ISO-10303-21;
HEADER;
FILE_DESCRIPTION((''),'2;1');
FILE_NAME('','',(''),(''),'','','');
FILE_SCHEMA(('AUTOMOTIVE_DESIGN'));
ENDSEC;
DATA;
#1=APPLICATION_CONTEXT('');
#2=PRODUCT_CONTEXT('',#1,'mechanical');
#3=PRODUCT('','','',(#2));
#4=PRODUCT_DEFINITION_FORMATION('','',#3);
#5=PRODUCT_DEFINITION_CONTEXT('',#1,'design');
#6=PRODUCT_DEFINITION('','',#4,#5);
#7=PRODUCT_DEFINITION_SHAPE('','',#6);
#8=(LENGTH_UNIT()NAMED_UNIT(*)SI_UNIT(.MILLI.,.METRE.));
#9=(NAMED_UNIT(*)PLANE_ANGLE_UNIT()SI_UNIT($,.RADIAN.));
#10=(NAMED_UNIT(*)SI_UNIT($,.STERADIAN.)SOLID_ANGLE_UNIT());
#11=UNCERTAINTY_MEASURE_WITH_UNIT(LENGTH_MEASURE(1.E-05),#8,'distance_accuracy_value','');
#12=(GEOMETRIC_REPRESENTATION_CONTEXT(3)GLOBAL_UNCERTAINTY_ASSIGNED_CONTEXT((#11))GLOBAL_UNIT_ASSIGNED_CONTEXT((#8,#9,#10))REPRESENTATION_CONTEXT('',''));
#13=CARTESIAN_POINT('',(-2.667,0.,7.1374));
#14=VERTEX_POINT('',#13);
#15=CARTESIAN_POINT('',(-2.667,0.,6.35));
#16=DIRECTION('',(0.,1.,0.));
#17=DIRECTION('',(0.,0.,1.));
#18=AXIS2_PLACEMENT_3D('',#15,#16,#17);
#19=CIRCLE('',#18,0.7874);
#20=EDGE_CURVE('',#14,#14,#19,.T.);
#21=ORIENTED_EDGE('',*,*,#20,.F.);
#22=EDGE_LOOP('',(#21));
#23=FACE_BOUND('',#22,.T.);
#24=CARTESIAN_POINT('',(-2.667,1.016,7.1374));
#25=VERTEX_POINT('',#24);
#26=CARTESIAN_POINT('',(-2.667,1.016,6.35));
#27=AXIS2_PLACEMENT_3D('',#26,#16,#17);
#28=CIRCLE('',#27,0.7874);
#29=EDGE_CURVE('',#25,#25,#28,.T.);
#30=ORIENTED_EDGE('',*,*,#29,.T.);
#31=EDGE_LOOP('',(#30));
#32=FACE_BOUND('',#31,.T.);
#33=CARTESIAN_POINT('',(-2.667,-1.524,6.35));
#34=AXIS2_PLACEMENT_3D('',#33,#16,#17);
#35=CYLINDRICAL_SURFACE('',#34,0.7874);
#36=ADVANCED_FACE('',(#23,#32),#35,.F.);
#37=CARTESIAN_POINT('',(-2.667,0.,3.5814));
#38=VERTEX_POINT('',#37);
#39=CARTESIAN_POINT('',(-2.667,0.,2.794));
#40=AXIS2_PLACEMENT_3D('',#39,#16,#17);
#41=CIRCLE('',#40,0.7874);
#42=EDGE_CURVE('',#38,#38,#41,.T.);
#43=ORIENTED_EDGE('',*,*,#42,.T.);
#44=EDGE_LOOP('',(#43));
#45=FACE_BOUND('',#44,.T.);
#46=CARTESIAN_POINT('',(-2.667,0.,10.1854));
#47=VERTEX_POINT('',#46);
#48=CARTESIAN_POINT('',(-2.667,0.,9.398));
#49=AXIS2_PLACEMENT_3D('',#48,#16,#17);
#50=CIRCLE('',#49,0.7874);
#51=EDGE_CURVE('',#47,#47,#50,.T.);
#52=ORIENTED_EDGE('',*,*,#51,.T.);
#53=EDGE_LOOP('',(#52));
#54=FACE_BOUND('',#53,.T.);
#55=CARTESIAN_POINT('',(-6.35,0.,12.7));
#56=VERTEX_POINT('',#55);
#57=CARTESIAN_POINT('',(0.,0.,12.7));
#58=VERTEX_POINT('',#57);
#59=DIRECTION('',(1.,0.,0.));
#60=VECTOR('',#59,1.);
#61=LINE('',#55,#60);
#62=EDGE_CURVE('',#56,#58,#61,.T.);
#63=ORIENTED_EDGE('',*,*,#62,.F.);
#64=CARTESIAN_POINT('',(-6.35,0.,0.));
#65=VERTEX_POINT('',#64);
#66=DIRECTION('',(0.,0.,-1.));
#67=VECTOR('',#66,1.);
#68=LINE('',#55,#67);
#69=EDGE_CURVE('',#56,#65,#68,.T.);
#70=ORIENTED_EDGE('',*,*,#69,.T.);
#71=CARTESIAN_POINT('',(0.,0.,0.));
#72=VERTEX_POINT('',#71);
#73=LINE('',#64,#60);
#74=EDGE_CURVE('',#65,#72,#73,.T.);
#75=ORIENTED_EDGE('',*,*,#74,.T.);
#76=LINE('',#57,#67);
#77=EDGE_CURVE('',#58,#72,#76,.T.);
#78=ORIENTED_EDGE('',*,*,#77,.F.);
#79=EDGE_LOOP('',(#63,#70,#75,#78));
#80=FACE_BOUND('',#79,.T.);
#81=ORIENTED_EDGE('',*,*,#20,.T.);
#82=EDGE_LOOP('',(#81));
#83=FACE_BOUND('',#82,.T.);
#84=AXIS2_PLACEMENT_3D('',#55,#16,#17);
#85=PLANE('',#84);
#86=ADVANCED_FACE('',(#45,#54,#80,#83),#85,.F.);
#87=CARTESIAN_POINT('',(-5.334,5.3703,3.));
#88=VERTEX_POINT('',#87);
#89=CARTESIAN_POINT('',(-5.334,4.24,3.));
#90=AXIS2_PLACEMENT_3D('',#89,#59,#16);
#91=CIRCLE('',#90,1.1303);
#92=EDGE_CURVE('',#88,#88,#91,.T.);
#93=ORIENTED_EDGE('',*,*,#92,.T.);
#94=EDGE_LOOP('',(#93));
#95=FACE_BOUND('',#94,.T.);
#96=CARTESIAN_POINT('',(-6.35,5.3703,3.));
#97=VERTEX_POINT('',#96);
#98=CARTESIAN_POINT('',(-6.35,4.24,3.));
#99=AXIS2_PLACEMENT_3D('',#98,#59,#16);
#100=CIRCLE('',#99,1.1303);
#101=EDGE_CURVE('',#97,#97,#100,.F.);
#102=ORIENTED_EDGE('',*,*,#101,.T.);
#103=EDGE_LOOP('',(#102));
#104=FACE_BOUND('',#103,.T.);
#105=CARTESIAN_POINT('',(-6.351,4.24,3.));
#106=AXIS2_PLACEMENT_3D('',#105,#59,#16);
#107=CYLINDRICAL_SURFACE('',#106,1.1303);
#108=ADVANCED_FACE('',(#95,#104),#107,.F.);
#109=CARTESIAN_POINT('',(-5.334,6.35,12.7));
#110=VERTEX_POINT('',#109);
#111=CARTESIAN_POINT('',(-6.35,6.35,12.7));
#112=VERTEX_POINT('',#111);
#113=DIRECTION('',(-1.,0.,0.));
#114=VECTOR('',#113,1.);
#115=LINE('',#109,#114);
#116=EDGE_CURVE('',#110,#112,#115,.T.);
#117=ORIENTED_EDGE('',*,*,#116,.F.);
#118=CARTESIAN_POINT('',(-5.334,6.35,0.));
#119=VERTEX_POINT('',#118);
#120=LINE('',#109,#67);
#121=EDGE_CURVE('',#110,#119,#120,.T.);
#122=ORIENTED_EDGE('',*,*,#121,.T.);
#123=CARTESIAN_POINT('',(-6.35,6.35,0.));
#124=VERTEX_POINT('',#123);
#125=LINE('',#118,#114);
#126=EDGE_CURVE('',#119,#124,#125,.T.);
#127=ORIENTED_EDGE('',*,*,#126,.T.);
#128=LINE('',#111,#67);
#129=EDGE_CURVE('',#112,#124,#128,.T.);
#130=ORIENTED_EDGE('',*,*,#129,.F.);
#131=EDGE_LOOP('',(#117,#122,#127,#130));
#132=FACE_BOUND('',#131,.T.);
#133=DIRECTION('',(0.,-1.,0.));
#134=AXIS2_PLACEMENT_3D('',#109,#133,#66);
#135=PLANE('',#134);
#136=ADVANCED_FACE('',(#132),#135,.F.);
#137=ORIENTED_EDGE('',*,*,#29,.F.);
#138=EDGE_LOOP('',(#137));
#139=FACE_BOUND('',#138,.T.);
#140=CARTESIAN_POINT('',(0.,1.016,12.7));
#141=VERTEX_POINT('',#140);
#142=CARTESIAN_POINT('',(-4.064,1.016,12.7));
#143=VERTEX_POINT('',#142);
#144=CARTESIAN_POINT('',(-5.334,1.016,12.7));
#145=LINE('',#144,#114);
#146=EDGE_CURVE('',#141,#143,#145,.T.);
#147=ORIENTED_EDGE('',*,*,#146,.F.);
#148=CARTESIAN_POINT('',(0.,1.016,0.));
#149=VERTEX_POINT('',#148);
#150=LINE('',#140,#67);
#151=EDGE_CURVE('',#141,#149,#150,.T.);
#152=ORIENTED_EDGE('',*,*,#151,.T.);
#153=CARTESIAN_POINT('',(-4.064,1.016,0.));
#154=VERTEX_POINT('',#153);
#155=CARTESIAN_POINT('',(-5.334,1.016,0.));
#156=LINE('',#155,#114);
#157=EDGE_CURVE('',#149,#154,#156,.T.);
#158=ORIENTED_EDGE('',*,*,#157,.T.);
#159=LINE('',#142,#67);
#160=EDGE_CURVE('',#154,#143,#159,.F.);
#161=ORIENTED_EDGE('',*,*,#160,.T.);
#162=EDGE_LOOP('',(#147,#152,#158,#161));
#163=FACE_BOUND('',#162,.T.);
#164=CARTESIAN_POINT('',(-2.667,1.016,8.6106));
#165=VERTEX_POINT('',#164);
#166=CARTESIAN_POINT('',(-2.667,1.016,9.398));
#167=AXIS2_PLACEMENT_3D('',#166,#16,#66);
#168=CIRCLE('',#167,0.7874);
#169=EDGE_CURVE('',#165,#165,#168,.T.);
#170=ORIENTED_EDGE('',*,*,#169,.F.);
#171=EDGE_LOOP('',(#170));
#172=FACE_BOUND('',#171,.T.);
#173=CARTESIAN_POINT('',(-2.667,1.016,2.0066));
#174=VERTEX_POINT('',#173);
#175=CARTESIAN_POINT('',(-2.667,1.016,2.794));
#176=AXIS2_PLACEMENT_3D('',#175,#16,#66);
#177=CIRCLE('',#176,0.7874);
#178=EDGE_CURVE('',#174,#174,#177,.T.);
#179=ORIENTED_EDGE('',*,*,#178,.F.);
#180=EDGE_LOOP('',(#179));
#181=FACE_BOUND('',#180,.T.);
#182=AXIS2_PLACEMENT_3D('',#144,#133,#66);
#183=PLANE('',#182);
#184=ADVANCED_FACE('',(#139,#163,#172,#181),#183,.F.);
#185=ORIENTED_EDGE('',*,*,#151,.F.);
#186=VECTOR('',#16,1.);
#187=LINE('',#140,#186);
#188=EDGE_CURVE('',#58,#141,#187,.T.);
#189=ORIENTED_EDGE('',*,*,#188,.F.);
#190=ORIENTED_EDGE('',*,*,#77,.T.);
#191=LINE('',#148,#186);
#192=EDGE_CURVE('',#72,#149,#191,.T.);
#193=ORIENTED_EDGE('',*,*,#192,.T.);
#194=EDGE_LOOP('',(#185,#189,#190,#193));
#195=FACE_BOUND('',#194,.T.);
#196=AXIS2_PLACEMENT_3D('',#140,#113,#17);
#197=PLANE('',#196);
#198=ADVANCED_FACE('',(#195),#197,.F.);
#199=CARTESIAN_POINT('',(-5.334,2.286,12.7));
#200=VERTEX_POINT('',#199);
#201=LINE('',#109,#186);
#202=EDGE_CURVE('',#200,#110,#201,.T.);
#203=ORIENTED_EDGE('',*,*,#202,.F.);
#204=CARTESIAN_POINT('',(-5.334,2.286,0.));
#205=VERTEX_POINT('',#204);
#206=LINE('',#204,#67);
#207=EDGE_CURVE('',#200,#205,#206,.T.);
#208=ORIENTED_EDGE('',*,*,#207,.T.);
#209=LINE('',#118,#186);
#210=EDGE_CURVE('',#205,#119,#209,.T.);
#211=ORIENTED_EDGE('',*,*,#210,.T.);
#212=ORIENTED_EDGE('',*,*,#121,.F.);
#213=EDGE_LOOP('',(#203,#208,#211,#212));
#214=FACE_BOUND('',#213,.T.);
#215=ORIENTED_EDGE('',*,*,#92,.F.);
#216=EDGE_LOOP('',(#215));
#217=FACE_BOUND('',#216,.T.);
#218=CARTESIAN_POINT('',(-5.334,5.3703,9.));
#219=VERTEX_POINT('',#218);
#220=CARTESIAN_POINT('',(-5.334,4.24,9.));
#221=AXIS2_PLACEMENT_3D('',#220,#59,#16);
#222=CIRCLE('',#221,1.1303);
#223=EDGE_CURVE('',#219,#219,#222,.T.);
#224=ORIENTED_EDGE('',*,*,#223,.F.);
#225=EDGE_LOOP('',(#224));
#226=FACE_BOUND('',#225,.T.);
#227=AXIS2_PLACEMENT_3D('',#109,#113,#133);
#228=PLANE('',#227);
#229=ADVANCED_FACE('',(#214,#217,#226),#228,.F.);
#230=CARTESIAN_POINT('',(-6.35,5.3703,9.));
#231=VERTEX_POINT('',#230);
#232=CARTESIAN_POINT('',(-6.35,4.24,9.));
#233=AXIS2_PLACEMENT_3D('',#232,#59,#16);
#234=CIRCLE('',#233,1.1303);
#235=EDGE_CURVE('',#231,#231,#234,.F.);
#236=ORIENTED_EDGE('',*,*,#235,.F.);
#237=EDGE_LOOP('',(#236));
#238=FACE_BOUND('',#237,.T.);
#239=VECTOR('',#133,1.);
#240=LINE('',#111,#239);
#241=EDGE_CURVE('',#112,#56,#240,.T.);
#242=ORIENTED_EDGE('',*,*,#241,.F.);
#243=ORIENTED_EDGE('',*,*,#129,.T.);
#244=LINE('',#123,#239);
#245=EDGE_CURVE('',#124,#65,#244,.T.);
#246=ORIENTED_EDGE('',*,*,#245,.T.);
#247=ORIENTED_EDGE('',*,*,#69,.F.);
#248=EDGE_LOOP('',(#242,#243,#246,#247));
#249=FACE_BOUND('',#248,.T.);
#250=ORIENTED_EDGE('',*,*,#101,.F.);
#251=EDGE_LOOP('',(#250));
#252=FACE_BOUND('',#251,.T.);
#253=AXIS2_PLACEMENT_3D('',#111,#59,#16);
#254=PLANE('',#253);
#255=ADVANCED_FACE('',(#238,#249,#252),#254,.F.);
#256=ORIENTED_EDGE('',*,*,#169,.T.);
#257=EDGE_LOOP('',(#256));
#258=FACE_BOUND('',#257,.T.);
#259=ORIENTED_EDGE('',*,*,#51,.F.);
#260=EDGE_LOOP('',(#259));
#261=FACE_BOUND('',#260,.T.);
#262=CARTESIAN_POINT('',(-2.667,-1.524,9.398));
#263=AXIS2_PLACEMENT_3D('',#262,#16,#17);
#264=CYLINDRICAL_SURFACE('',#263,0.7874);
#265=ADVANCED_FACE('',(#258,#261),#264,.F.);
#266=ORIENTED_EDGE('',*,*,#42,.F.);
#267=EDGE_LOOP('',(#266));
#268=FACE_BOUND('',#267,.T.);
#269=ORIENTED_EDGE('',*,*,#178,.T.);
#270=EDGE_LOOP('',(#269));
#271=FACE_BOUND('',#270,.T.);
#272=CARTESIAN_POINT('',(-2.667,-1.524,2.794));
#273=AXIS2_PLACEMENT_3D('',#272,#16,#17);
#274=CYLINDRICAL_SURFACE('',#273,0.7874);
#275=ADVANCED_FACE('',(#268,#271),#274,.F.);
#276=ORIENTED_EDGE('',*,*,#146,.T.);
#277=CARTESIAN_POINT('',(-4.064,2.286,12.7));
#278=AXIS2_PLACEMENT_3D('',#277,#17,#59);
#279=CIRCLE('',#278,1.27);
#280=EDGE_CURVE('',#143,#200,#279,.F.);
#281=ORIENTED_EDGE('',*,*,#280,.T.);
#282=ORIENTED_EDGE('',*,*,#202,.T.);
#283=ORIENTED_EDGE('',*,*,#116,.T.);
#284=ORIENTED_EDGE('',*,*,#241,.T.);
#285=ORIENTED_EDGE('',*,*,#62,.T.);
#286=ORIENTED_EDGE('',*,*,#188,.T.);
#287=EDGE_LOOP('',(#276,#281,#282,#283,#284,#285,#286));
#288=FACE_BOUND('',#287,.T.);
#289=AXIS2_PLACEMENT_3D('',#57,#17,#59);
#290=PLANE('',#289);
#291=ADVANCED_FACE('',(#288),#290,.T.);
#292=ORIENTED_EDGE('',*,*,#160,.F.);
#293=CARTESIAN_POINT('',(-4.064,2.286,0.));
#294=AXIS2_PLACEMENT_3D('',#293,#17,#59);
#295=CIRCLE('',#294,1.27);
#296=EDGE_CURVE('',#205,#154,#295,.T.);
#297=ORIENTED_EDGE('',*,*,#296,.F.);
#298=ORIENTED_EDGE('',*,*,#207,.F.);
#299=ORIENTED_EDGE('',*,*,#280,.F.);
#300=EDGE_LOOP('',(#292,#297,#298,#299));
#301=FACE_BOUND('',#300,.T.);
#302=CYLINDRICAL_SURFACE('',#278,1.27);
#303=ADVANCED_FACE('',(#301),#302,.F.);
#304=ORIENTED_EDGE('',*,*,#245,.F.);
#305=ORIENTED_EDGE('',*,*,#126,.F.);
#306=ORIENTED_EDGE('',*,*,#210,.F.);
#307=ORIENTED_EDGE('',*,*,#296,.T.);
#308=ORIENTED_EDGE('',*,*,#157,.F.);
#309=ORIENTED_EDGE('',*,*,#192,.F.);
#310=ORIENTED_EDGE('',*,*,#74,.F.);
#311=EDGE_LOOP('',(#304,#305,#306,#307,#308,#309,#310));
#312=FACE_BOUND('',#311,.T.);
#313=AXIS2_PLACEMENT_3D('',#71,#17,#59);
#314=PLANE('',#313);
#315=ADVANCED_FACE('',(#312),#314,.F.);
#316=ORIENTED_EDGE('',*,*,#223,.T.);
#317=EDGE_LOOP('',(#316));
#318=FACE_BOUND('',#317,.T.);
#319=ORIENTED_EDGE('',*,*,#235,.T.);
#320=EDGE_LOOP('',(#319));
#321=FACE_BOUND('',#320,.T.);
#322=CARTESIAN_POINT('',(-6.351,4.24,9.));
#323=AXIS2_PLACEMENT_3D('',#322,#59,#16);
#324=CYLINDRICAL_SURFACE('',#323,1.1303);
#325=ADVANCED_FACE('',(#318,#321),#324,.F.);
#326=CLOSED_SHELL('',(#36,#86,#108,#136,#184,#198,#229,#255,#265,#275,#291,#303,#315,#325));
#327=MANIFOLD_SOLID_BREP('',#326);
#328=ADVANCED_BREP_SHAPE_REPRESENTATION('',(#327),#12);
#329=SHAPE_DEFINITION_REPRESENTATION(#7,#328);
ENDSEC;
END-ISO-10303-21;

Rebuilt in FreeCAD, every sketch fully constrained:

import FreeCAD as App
import Part
import Sketcher
from FreeCAD import Vector
Q = App.Units.Quantity


def edges_at(feature, points):
    """Names of the edges that pass closest to the given points."""
    edges = feature.Shape.Edges
    near = lambda p: min(range(len(edges)), key=lambda i: edges[i].distToShape(Part.Vertex(*p))[0])
    return sorted({f"Edge{near(p) + 1}" for p in points})


def add_polygon(sketch, points):
    """Adds a closed chain of lines whose ends are joined by coincident constraints."""
    first, n = sketch.GeometryCount, len(points)
    for a, b in zip(points, points[1:] + points[:1]):
        sketch.addGeometry(Part.LineSegment(App.Vector(*a, 0), App.Vector(*b, 0)), False)
    for i in range(n):
        sketch.addConstraint(Sketcher.Constraint("Coincident", first + i, 2, first + (i + 1) % n, 1))

doc = App.newDocument("Part")
body = doc.addObject("PartDesign::Body", "Body")

sketch1 = body.newObject("Sketcher::SketchObject", "Sketch")
sketch1.AttachmentSupport = (doc.getObject("XY_Plane"), [""])
sketch1.MapMode = "FlatFace"
add_polygon(sketch1, [(-6.3, 6.3), (-6.3, 0), (0, 0), (0, 1), (-5.3, 1), (-5.3, 6.3)])
sketch1.addConstraint([
    Sketcher.Constraint("Vertical", 0),
    Sketcher.Constraint("Horizontal", 1),
    Sketcher.Constraint("Vertical", 2),
    Sketcher.Constraint("Horizontal", 3),
    Sketcher.Constraint("Vertical", 4),
    Sketcher.Constraint("Horizontal", 5),
    Sketcher.Constraint("Coincident", 1, 2, -1, 1),
    Sketcher.Constraint("Equal", 1, 0),
    Sketcher.Constraint("Equal", 5, 2),
    Sketcher.Constraint("DistanceX", 1, 1, 1, 2, Q("0.25 in")),
    Sketcher.Constraint("DistanceX", 3, 2, 3, 1, Q("0.21 in")),
])
pad1 = body.newObject("PartDesign::Pad", "Pad")
pad1.Profile = sketch1
pad1.Length = Q("0.5 in")

sketch2 = body.newObject("Sketcher::SketchObject", "Sketch001")
sketch2.AttachmentSupport = (doc.getObject("XZ_Plane"), [""])
sketch2.MapMode = "FlatFace"
sketch2.AttachmentOffset = App.Placement(Vector(0, 0, -0.04 * 25.4), App.Rotation())
sketch2.addGeometry([
    Part.Circle(Vector(-2.7, 6.3, 0), Vector(0, 0, 1), 0.8),
    Part.Circle(Vector(-2.7, 9.4, 0), Vector(0, 0, 1), 0.8),
    Part.Circle(Vector(-2.7, 2.8, 0), Vector(0, 0, 1), 0.8),
], False)
sketch2.addConstraint([
    Sketcher.Constraint("Equal", 0, 1),
    Sketcher.Constraint("Equal", 1, 2),
    Sketcher.Constraint("Vertical", 0, 3, 1, 3),
    Sketcher.Constraint("Vertical", 1, 3, 2, 3),
    Sketcher.Constraint("Diameter", 0, Q("0.062 in")),
    Sketcher.Constraint("DistanceY", -1, 1, 0, 3, Q("0.25 in")),
    Sketcher.Constraint("DistanceY", -1, 1, 1, 3, Q("0.37 in")),
    Sketcher.Constraint("DistanceY", -1, 1, 2, 3, Q("0.11 in")),
    Sketcher.Constraint("DistanceX", 0, 3, -1, 1, Q("0.105 in")),
])
pocket1 = body.newObject("PartDesign::Pocket", "Pocket")
pocket1.Profile = sketch2
pocket1.Length = Q("0.1 in")
pocket1.Reversed = True
doc.recompute()

fillet = body.newObject("PartDesign::Fillet", "Fillet")
fillet.Base = (pocket1, edges_at(pocket1, [(-5.334, 1.016, 6.35)]))
fillet.Radius = Q("0.05 in")

sketch3 = body.newObject("Sketcher::SketchObject", "Sketch002")
sketch3.AttachmentSupport = (doc.getObject("YZ_Plane"), [""])
sketch3.MapMode = "FlatFace"
sketch3.AttachmentOffset = App.Placement(Vector(0, 0, -0.21 * 25.4), App.Rotation())
sketch3.addGeometry(Part.Circle(Vector(4.2, 9, 0), Vector(0, 0, 1), 1.1), False)
sketch3.addConstraint([
    Sketcher.Constraint("Diameter", 0, Q("0.089 in")),
    Sketcher.Constraint("DistanceX", -1, 1, 0, 3, Q("4.24 mm")),
    Sketcher.Constraint("DistanceY", -1, 1, 0, 3, Q("9 mm")),
])
pocket2 = body.newObject("PartDesign::Pocket", "Pocket001")
pocket2.Profile = sketch3
pocket2.Type = "UpToFirst"

sketch4 = body.newObject("Sketcher::SketchObject", "Sketch003")
sketch4.AttachmentSupport = (doc.getObject("YZ_Plane"), [""])
sketch4.MapMode = "FlatFace"
sketch4.AttachmentOffset = App.Placement(Vector(0, 0, -0.21 * 25.4), App.Rotation())
sketch4.addGeometry(Part.Circle(Vector(4.2, 3, 0), Vector(0, 0, 1), 1.1), False)
sketch4.addConstraint([
    Sketcher.Constraint("Diameter", 0, Q("0.089 in")),
    Sketcher.Constraint("DistanceX", -1, 1, 0, 3, Q("4.24 mm")),
    Sketcher.Constraint("DistanceY", -1, 1, 0, 3, Q("3 mm")),
])
pocket3 = body.newObject("PartDesign::Pocket", "Pocket002")
pocket3.Profile = sketch4
pocket3.Type = "UpToFirst"

doc.recompute()
